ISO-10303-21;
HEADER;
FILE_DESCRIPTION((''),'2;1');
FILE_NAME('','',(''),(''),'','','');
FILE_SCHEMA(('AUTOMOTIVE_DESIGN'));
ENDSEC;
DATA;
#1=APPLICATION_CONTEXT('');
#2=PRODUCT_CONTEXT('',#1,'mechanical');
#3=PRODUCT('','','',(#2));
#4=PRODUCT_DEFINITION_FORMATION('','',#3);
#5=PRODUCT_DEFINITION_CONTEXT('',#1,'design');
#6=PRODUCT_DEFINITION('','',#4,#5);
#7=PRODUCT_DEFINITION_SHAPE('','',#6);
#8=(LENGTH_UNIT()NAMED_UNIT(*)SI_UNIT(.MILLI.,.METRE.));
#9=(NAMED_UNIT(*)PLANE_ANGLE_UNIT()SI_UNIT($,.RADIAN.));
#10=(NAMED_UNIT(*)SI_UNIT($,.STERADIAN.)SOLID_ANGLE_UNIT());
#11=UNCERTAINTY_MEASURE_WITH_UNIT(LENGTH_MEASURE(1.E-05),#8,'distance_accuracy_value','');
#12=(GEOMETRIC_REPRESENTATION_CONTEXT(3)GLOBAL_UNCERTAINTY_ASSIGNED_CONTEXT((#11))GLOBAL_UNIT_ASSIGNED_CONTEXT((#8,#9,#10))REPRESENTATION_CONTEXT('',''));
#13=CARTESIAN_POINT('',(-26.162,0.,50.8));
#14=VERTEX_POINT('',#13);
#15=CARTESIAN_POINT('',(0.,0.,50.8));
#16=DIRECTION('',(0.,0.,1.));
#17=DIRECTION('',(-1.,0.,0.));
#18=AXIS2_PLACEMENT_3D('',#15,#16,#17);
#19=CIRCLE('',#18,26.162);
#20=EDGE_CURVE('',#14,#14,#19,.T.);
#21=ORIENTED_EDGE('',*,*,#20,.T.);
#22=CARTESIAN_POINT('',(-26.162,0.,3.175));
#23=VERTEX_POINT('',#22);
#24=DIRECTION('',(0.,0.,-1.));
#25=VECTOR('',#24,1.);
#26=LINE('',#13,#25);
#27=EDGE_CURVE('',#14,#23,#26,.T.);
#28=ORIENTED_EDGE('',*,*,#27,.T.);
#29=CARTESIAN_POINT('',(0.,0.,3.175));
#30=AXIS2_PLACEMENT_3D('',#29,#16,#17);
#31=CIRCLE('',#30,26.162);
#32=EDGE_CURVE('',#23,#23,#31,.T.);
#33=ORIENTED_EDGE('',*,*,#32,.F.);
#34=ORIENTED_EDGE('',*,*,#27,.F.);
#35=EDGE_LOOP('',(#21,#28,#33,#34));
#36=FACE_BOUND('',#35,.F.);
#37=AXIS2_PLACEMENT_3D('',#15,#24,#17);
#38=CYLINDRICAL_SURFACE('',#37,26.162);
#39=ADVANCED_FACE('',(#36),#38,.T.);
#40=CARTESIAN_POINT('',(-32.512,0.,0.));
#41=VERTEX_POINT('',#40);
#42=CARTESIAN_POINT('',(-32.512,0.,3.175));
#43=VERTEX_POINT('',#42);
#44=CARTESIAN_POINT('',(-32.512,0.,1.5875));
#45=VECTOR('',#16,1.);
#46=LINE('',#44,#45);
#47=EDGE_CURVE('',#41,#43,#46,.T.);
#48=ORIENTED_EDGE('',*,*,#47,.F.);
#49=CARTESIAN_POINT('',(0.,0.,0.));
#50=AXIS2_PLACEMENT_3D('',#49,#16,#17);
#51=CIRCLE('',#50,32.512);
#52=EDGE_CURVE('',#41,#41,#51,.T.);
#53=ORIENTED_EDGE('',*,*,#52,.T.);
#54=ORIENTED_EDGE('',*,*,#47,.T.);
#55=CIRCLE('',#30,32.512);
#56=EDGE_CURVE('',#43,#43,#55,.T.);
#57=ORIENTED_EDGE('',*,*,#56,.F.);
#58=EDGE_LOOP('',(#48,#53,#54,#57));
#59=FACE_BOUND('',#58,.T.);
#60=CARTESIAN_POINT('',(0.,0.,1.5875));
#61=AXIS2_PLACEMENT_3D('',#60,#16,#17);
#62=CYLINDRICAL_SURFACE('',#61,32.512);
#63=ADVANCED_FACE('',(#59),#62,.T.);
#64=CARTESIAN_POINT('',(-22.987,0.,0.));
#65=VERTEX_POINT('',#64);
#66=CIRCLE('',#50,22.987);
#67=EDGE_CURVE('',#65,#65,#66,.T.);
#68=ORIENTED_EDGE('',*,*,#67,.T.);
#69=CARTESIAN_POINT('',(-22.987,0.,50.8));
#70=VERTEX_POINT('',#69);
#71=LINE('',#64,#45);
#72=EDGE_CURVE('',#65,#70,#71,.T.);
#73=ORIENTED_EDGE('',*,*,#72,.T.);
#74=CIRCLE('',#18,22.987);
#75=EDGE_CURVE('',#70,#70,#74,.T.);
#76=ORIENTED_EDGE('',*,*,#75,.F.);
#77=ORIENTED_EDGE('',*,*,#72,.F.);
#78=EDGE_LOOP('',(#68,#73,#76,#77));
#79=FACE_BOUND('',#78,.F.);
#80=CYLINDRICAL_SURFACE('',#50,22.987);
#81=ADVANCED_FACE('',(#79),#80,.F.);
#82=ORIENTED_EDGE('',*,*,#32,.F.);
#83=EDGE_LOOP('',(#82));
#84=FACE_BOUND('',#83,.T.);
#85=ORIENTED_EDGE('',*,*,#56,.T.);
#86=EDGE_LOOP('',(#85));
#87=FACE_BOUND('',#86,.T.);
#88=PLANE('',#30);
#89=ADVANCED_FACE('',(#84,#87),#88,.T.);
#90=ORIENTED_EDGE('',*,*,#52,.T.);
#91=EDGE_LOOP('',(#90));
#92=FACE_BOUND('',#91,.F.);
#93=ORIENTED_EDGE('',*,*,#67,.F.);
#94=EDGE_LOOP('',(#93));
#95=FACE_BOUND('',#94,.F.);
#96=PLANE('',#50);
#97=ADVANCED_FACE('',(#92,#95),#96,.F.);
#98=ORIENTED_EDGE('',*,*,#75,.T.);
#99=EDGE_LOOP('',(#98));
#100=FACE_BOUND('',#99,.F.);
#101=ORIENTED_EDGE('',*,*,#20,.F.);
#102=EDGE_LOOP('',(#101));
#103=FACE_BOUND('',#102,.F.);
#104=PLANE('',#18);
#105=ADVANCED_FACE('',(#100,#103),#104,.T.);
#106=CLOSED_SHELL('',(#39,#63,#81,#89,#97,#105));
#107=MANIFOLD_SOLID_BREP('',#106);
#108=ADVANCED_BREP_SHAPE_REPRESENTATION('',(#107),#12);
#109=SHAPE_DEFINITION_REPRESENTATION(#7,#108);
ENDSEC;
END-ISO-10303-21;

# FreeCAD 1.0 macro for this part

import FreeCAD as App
import Part
import Sketcher

V = App.Vector
Q = App.Units.Quantity

doc = App.newDocument("Part")
body = doc.addObject("PartDesign::Body", "Body")

sketch1 = body.newObject("Sketcher::SketchObject", "Sketch")
sketch1.AttachmentSupport = (doc.getObject("XZ_Plane"), [""])
sketch1.MapMode = "FlatFace"
sketch1.addGeometry([
    Part.LineSegment(V(-23, 50.8, 0), V(-26.2, 50.8, 0)),
    Part.LineSegment(V(-26.2, 50.8, 0), V(-26.2, 3.2, 0)),
    Part.LineSegment(V(-26.2, 3.2, 0), V(-32.5, 3.2, 0)),
    Part.LineSegment(V(-32.5, 3.2, 0), V(-32.5, 0, 0)),
    Part.LineSegment(V(-32.5, 0, 0), V(-23, 0, 0)),
    Part.LineSegment(V(-23, 0, 0), V(-23, 50.8, 0)),
], False)
sketch1.addConstraint([
    Sketcher.Constraint("Coincident", 0, 2, 1, 1),
    Sketcher.Constraint("Coincident", 1, 2, 2, 1),
    Sketcher.Constraint("Coincident", 2, 2, 3, 1),
    Sketcher.Constraint("Coincident", 3, 2, 4, 1),
    Sketcher.Constraint("Coincident", 4, 2, 5, 1),
    Sketcher.Constraint("Coincident", 5, 2, 0, 1),
    Sketcher.Constraint("Horizontal", 0),
    Sketcher.Constraint("Vertical", 1),
    Sketcher.Constraint("Horizontal", 2),
    Sketcher.Constraint("Vertical", 3),
    Sketcher.Constraint("Horizontal", 4),
    Sketcher.Constraint("Vertical", 5),
    Sketcher.Constraint("PointOnObject", 3, 2, -1),
    Sketcher.Constraint("Equal", 0, 3),
    Sketcher.Constraint("DistanceY", 5, 1, 5, 2, Q("2 in")),
    Sketcher.Constraint("DistanceX", 2, 2, 2, 1, Q("0.25 in")),
    Sketcher.Constraint("DistanceX", 0, 2, 0, 1, Q("0.125 in")),
    Sketcher.Constraint("DistanceX", 0, 2, -1, 1, Q("1.03 in")),
])
revolution = body.newObject("PartDesign::Revolution", "Revolution")
revolution.Profile = sketch1
revolution.ReferenceAxis = (sketch1, ["V_Axis"])
revolution.Angle = 360

doc.recompute()
